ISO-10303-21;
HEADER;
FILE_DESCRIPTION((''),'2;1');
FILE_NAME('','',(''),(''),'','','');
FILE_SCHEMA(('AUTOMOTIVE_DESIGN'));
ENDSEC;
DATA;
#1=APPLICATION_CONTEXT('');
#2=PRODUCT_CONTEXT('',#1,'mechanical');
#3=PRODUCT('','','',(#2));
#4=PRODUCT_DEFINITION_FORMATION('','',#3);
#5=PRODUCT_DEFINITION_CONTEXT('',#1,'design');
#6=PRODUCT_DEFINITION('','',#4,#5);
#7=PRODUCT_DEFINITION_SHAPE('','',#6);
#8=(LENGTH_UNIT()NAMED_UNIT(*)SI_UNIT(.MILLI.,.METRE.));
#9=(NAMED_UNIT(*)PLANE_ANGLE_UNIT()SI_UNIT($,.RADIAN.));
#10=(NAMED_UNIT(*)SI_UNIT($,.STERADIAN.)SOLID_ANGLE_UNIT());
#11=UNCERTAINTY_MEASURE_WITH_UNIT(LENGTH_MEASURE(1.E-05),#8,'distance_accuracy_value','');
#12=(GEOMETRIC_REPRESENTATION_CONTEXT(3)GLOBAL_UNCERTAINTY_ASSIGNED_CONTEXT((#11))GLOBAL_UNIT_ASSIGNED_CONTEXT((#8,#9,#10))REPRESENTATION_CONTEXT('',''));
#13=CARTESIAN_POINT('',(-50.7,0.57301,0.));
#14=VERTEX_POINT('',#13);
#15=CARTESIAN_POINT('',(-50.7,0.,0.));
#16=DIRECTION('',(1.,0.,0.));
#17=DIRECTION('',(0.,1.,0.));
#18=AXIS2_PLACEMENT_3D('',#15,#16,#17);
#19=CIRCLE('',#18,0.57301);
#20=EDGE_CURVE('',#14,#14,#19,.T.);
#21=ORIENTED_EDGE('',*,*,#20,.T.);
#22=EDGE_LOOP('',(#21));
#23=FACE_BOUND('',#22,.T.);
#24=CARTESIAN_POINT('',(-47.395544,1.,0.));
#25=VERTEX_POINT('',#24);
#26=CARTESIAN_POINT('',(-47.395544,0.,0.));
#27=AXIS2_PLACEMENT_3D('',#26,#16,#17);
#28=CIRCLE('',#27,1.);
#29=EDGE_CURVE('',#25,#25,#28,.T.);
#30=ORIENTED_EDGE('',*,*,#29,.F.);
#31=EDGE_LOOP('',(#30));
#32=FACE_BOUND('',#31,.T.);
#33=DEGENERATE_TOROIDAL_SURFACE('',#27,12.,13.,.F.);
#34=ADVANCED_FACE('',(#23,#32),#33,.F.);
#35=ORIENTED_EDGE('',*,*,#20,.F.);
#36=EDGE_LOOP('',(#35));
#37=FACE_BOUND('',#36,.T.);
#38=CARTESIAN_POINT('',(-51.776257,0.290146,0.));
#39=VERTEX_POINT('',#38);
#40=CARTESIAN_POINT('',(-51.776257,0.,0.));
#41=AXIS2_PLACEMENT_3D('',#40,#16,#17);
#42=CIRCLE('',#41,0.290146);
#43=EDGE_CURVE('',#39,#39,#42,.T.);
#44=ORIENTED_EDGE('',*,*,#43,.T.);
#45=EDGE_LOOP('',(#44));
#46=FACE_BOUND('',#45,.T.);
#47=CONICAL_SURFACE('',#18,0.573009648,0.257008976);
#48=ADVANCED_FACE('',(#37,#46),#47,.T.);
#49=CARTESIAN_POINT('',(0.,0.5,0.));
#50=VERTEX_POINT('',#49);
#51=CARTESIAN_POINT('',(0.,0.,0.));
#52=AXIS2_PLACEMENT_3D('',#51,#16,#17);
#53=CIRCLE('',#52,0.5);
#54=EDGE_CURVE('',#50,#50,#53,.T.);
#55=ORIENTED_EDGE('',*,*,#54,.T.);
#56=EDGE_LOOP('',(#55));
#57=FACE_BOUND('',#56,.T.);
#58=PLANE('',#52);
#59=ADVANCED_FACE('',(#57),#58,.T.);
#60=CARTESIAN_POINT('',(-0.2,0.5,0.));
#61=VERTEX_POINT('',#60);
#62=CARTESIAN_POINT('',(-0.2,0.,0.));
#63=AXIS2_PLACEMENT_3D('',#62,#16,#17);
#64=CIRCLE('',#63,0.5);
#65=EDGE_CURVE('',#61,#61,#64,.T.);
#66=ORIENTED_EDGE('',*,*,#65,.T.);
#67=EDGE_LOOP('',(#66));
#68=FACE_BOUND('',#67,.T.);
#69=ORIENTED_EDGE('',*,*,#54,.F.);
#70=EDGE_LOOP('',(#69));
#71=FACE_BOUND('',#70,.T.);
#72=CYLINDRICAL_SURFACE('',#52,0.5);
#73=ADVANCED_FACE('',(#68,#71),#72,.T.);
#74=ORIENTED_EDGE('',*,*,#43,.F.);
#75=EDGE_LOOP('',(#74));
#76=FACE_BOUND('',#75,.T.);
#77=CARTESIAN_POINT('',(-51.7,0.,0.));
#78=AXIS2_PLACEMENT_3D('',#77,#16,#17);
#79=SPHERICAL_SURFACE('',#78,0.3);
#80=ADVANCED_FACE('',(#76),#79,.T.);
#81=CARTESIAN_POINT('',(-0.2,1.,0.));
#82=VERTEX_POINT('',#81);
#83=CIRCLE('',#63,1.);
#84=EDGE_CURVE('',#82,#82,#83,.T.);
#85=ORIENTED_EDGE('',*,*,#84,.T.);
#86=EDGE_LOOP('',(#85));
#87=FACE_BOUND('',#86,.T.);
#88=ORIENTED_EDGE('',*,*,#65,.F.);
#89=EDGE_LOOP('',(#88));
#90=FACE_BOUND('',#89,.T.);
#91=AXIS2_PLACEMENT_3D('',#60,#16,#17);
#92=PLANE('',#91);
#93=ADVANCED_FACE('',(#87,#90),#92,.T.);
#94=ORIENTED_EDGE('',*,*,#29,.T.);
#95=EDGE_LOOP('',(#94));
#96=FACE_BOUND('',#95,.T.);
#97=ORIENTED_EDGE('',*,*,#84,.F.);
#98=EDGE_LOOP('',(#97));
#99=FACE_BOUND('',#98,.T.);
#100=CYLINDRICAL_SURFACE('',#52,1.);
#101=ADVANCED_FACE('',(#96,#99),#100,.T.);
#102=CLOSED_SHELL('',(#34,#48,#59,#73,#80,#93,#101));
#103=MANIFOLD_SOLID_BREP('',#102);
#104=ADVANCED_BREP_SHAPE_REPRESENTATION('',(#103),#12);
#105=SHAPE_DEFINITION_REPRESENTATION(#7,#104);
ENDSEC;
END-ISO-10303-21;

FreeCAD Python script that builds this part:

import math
import FreeCAD as App
import Part
import Sketcher

doc = App.newDocument("Part")
body = doc.addObject("PartDesign::Body", "Body")

# Sketch on XY plane
sketch1 = body.newObject("Sketcher::SketchObject", "Sketch")
sketch1.AttachmentSupport = (doc.getObject("XY_Plane"), [""])
sketch1.MapMode = "FlatFace"
sketch1.addGeometry(Part.LineSegment(App.Vector(0, 0, 0), App.Vector(0, 0.5, 0)), False)
sketch1.addGeometry(Part.LineSegment(App.Vector(0, 0.5, 0), App.Vector(-0.2, 0.5, 0)), False)
sketch1.addGeometry(Part.LineSegment(App.Vector(-0.2, 0.5, 0), App.Vector(-0.2, 1, 0)), False)
sketch1.addGeometry(Part.LineSegment(App.Vector(-0.2, 1, 0), App.Vector(-47.4, 1, 0)), False)
sketch1.addGeometry(Part.ArcOfCircle(Part.Circle(App.Vector(-47.4, -12, 0), App.Vector(0, 0, 1), 13), math.radians(90), math.radians(104.73)), False)
sketch1.addGeometry(Part.LineSegment(App.Vector(-50.7, 0.57, 0), App.Vector(-51.78, 0.29, 0)), False)
sketch1.addGeometry(Part.ArcOfCircle(Part.Circle(App.Vector(-51.7, 0, 0), App.Vector(0, 0, 1), 0.3), math.radians(105), math.radians(180)), False)
sketch1.addGeometry(Part.LineSegment(App.Vector(-52, 0, 0), App.Vector(0, 0, 0)), False)
sketch1.addConstraint(Sketcher.Constraint("Coincident", 0, 2, 1, 1))
sketch1.addConstraint(Sketcher.Constraint("Coincident", 1, 2, 2, 1))
sketch1.addConstraint(Sketcher.Constraint("Coincident", 2, 2, 3, 1))
sketch1.addConstraint(Sketcher.Constraint("Tangent", 3, 2, 4, 1))
sketch1.addConstraint(Sketcher.Constraint("Tangent", 4, 2, 5, 1))
sketch1.addConstraint(Sketcher.Constraint("Tangent", 5, 2, 6, 1))
sketch1.addConstraint(Sketcher.Constraint("Coincident", 6, 2, 7, 1))
sketch1.addConstraint(Sketcher.Constraint("Coincident", 7, 2, 0, 1))
sketch1.addConstraint(Sketcher.Constraint("Vertical", 0))
sketch1.addConstraint(Sketcher.Constraint("Horizontal", 1))
sketch1.addConstraint(Sketcher.Constraint("Vertical", 2))
sketch1.addConstraint(Sketcher.Constraint("Horizontal", 3))
sketch1.addConstraint(Sketcher.Constraint("Horizontal", 7))
sketch1.addConstraint(Sketcher.Constraint("Coincident", 7, 2, -1, 1))
sketch1.addConstraint(Sketcher.Constraint("PointOnObject", 6, 3, -1))
sketch1.addConstraint(Sketcher.Constraint("Equal", 0, 2))
sketch1.addConstraint(Sketcher.Constraint("Radius", 4, 13.0))
sketch1.addConstraint(Sketcher.Constraint("Radius", 6, 0.3))
sketch1.addConstraint(Sketcher.Constraint("DistanceX", 7, 1, 7, 2, 52.0))
sketch1.addConstraint(Sketcher.Constraint("DistanceX", 1, 2, 1, 1, 0.2))
sketch1.addConstraint(Sketcher.Constraint("DistanceY", 0, 1, 0, 2, 0.5))
sketch1.addConstraint(Sketcher.Constraint("DistanceX", 6, 3, 4, 2, 1.0))
revolution = body.newObject("PartDesign::Revolution", "Revolution")
revolution.Profile = sketch1
revolution.ReferenceAxis = (sketch1, ["H_Axis"])
revolution.Angle = 360

doc.recompute()
